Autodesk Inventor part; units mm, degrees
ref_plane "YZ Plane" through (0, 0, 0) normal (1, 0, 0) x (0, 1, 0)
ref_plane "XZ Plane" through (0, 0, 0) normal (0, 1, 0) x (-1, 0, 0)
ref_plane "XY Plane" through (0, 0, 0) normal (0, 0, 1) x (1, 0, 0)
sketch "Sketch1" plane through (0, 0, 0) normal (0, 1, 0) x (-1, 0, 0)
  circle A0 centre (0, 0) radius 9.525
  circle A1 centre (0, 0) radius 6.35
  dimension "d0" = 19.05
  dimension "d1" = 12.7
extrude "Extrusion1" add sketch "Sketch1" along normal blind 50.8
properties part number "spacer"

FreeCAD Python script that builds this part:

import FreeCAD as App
import Part
import Sketcher
Q = App.Units.Quantity

doc = App.newDocument("Part")
body = doc.addObject("PartDesign::Body", "Body")

sketch1 = body.newObject("Sketcher::SketchObject", "Sketch")
sketch1.AttachmentSupport = (doc.getObject("XZ_Plane"), [""])
sketch1.MapMode = "FlatFace"
sketch1.addGeometry([
    Part.Circle(App.Vector(0, 0, 0), App.Vector(0, 0, 1), 9.525),
    Part.Circle(App.Vector(0, 0, 0), App.Vector(0, 0, 1), 6.35),
], False)
sketch1.addConstraint([
    Sketcher.Constraint("Coincident", 0, 3, -1, 1),
    Sketcher.Constraint("Coincident", 1, 3, -1, 1),
    Sketcher.Constraint("Diameter", 1, Q("0.5 in")),
    Sketcher.Constraint("Diameter", 0, Q("0.75 in")),
])
pad1 = body.newObject("PartDesign::Pad", "Pad")
pad1.Profile = sketch1
pad1.Length = Q("2 in")
pad1.Reversed = True

doc.recompute()
